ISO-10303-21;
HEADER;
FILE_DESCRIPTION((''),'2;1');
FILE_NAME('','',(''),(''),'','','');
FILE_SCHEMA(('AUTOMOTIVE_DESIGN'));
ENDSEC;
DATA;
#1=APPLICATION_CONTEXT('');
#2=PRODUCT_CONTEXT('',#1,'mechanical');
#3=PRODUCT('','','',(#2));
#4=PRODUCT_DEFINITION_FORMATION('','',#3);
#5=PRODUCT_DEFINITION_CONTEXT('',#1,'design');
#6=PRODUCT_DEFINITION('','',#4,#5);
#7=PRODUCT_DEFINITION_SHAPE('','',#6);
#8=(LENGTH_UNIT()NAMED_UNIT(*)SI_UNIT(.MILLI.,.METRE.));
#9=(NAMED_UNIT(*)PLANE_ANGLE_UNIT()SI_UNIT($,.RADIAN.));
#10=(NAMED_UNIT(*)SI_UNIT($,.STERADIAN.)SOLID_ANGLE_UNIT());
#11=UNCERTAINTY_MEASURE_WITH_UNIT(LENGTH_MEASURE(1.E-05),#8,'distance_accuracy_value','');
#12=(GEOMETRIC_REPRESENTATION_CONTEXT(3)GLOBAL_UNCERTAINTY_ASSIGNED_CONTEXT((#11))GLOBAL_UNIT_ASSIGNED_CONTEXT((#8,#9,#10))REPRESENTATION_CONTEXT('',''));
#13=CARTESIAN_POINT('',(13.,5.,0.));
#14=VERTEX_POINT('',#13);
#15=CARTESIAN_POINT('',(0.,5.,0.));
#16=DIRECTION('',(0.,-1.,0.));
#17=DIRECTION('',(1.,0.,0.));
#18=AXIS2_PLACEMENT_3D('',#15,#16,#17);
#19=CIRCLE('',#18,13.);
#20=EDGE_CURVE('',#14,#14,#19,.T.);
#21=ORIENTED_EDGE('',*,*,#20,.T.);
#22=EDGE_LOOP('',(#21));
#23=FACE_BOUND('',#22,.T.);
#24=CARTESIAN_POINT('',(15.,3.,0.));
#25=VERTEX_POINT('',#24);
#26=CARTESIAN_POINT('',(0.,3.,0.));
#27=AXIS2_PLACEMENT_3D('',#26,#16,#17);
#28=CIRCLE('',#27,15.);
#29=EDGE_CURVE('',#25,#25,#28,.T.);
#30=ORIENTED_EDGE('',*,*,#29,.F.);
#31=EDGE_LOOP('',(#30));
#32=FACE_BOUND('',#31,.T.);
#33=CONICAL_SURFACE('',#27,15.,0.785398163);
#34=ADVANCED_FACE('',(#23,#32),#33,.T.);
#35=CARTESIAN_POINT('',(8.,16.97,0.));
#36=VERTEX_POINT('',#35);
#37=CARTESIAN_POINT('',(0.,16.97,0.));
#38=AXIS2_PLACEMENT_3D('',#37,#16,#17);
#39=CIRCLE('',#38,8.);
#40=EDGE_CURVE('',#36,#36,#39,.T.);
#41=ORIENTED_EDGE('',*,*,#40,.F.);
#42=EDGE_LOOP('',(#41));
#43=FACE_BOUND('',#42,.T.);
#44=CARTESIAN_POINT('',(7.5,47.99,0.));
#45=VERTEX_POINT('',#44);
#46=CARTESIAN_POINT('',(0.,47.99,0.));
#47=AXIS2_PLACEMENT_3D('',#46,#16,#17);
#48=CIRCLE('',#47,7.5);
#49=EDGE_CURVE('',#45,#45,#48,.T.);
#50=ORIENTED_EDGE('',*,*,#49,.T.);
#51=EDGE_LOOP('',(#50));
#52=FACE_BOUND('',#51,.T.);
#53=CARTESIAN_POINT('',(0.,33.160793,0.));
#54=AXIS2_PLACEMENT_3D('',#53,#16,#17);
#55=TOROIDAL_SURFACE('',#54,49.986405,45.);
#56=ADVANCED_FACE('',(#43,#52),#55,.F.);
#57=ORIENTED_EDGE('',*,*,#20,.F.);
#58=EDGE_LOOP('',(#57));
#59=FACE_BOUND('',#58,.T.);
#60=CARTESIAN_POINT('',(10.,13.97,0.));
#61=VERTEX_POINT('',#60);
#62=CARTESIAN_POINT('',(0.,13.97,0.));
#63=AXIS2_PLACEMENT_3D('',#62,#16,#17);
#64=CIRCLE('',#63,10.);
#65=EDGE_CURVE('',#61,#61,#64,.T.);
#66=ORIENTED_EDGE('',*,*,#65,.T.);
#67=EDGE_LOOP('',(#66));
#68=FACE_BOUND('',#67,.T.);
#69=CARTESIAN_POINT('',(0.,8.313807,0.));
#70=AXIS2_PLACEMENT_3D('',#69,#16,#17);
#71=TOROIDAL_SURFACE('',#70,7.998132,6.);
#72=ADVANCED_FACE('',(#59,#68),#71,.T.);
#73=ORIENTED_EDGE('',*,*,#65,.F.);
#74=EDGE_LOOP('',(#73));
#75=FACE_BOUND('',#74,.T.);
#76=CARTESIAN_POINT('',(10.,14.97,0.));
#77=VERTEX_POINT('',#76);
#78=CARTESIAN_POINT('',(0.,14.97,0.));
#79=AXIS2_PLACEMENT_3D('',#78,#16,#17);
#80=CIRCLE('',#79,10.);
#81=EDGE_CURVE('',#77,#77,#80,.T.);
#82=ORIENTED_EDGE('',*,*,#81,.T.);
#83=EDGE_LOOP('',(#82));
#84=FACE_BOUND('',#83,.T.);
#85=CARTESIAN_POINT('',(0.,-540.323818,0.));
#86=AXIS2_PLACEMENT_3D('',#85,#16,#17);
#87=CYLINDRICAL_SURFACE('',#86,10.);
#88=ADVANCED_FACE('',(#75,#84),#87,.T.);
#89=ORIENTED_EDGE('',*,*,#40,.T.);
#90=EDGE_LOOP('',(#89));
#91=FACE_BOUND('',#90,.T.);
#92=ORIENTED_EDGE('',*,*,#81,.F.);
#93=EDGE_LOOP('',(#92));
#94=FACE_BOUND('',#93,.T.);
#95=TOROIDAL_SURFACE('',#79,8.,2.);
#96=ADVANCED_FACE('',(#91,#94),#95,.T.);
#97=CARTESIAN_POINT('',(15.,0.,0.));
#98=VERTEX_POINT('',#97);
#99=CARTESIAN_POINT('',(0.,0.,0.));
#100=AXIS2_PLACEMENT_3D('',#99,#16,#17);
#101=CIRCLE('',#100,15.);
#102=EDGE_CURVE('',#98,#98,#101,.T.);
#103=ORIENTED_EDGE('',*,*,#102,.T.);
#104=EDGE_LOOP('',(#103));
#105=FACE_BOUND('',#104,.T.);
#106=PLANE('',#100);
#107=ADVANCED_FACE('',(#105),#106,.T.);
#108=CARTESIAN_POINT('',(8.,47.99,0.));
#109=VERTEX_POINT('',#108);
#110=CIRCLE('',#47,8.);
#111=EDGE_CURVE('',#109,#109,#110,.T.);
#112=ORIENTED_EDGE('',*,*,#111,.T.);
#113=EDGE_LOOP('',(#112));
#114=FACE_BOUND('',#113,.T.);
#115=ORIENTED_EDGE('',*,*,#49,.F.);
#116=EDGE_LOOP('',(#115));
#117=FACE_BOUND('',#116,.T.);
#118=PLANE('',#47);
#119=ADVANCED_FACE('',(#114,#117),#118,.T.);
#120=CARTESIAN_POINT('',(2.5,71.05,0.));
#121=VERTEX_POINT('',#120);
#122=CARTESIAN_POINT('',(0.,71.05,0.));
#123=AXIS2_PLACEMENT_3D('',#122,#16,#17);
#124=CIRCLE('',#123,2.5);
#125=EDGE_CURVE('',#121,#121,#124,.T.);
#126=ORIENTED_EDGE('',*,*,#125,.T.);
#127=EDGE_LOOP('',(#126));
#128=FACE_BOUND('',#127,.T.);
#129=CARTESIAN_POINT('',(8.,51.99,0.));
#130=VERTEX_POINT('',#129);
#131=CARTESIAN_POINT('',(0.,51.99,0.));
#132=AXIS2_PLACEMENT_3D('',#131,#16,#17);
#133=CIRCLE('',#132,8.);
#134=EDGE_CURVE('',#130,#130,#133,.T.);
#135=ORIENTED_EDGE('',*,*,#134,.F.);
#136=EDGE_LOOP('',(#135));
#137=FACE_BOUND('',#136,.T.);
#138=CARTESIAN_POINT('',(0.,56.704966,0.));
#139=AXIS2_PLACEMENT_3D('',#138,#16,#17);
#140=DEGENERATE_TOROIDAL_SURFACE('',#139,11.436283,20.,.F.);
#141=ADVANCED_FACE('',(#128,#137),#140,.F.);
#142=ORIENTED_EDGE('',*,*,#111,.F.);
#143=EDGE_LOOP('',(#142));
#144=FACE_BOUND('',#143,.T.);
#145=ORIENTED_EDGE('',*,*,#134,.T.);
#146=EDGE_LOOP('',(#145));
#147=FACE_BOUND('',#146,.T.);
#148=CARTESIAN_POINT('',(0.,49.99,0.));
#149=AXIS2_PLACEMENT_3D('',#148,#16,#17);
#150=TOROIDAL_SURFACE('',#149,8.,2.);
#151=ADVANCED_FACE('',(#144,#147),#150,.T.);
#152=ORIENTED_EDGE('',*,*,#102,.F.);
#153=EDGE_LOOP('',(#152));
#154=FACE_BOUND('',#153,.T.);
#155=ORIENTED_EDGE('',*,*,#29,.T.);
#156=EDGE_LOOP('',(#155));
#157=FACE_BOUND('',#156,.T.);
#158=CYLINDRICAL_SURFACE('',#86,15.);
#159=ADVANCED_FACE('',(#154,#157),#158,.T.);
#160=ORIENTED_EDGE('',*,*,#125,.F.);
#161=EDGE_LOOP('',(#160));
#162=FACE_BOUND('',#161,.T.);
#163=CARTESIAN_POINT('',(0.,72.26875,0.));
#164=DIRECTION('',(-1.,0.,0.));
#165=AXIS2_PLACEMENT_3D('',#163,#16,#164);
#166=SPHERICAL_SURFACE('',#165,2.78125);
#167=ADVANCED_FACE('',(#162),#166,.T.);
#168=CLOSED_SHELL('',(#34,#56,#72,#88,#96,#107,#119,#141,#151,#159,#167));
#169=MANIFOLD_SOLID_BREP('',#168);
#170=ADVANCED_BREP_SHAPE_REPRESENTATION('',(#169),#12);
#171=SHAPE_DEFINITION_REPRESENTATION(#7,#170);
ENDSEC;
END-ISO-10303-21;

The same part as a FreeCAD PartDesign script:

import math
import FreeCAD as App
import Part
import Sketcher
Q = App.Units.Quantity

doc = App.newDocument("Part")
params = doc.addObject("Spreadsheet::Sheet", "Params")
for row, (alias, value) in enumerate([
    ("sketch1_radius", "20 mm"),
    ("sketch1_radius2", "2 mm"),
    ("sketch1_radius3", "45 mm"),
    ("sketch1_radius4", "6 mm"),
    ("sketch1_width", "15 mm"),
    ("revolution_angle", "360 deg"),
], start=1):
    params.set(f"A{row}", alias)
    params.set(f"B{row}", "=" + value)
    params.setAlias(f"B{row}", alias)

body = doc.addObject("PartDesign::Body", "Body")

sketch1 = doc.addObject("Sketcher::SketchObject", "Sketch")
body.addObject(sketch1)
sketch1.AttachmentSupport = (doc.XY_Plane, [""])
sketch1.MapMode = "FlatFace"
sketch1.addGeometry([
    Part.LineSegment(App.Vector(-15, 0, 0), App.Vector(0, 0, 0)),
    Part.LineSegment(App.Vector(0, 0, 0), App.Vector(0, 75, 0)),
    Part.ArcOfCircle(Part.Circle(App.Vector(0, 72.3, 0), App.Vector(0, 0, 1), 2.8), math.radians(90), math.radians(206)),
    Part.ArcOfCircle(Part.Circle(App.Vector(11.4, 56.7, 0), App.Vector(0, 0, 1), 20), math.radians(134), math.radians(194)),
    Part.ArcOfCircle(Part.Circle(App.Vector(-8, 50, 0), App.Vector(0, 0, 1), 2), math.radians(90), math.radians(180)),
    Part.ArcOfCircle(Part.Circle(App.Vector(-8, 50, 0), App.Vector(0, 0, 1), 2), math.radians(-180), math.radians(-90)),
    Part.LineSegment(App.Vector(-8, 48, 0), App.Vector(-7.5, 48, 0)),
    Part.ArcOfCircle(Part.Circle(App.Vector(-50, 33.2, 0), App.Vector(0, 0, 1), 45), math.radians(-21), math.radians(19)),
    Part.ArcOfCircle(Part.Circle(App.Vector(-8, 15, 0), App.Vector(0, 0, 1), 2), math.radians(90), math.radians(180)),
    Part.LineSegment(App.Vector(-10, 15, 0), App.Vector(-10, 14, 0)),
    Part.ArcOfCircle(Part.Circle(App.Vector(-8, 8.3, 0), App.Vector(0, 0, 1), 6), math.radians(109), math.radians(214)),
    Part.LineSegment(App.Vector(-13, 5, 0), App.Vector(-15, 3, 0)),
    Part.LineSegment(App.Vector(-15, 3, 0), App.Vector(-15, 0, 0)),
], False)
sketch1.addConstraint([
    Sketcher.Constraint("Coincident", 0, 2, 1, 1),
    Sketcher.Constraint("Coincident", 1, 2, 2, 1),
    Sketcher.Constraint("Coincident", 2, 2, 3, 1),
    Sketcher.Constraint("Coincident", 3, 2, 4, 1),
    Sketcher.Constraint("Tangent", 4, 2, 5, 1),
    Sketcher.Constraint("Tangent", 5, 2, 6, 1),
    Sketcher.Constraint("Coincident", 6, 2, 7, 2),
    Sketcher.Constraint("Coincident", 7, 1, 8, 1),
    Sketcher.Constraint("Tangent", 8, 2, 9, 1),
    Sketcher.Constraint("Coincident", 9, 2, 10, 1),
    Sketcher.Constraint("Coincident", 10, 2, 11, 1),
    Sketcher.Constraint("Coincident", 11, 2, 12, 1),
    Sketcher.Constraint("Coincident", 12, 2, 0, 1),
    Sketcher.Constraint("Horizontal", 0),
    Sketcher.Constraint("Vertical", 1),
    Sketcher.Constraint("Horizontal", 6),
    Sketcher.Constraint("Vertical", 9),
    Sketcher.Constraint("Vertical", 12),
    Sketcher.Constraint("Coincident", 0, 2, -1, 1),
    Sketcher.Constraint("Equal", 4, 5),
    Sketcher.Constraint("Equal", 5, 8),
    Sketcher.Constraint("PointOnObject", 2, 3, -2),
    Sketcher.Constraint("Horizontal", 5, 3, 4, 2),
    Sketcher.Constraint("Vertical", 5, 3, 8, 3),
    Sketcher.Constraint("Vertical", 8, 3, 3, 2),
    Sketcher.Constraint("Vertical", 5, 2, 7, 1),
    Sketcher.Constraint("Radius", 3, 20.0),
    Sketcher.Constraint("Radius", 4, 2.0),
    Sketcher.Constraint("Radius", 7, 45.0),
    Sketcher.Constraint("Radius", 10, 6.0),
    Sketcher.Constraint("DistanceX", 0, 1, 0, 2, 15.0),
    Sketcher.Constraint("DistanceY", 9, 2, 9, 1, 1.0),
    Sketcher.Constraint("DistanceY", 12, 2, 12, 1, 3.0),
    Sketcher.Constraint("Angle", 11, Q("-135 deg")),
    Sketcher.Constraint("DistanceX", 6, 1, 6, 2, 0.5),
    Sketcher.Constraint("DistanceX", 4, 3, -1, 1, 8.0),
    Sketcher.Constraint("DistanceX", 10, 2, -1, 1, 13.0),
    Sketcher.Constraint("DistanceY", 2, 2, 1, 2, 4.0),
    Sketcher.Constraint("DistanceY", 1, 1, 1, 2, 75.05),
    Sketcher.Constraint("DistanceX", 2, 2, -1, 1, 2.5),
    Sketcher.Constraint("DistanceY", -1, 1, 4, 3, 49.99),
    Sketcher.Constraint("DistanceY", -1, 1, 8, 3, 14.97),
])
sketch1.setExpression("Constraints[26]", "Params.sketch1_radius")
sketch1.setExpression("Constraints[27]", "Params.sketch1_radius2")
sketch1.setExpression("Constraints[28]", "Params.sketch1_radius3")
sketch1.setExpression("Constraints[29]", "Params.sketch1_radius4")
sketch1.setExpression("Constraints[30]", "Params.sketch1_width")
revolution = doc.addObject("PartDesign::Revolution", "Revolution")
body.addObject(revolution)
revolution.Profile = sketch1
revolution.ReferenceAxis = (sketch1, ["V_Axis"])
revolution.setExpression("Angle", "Params.revolution_angle")

doc.recompute()
